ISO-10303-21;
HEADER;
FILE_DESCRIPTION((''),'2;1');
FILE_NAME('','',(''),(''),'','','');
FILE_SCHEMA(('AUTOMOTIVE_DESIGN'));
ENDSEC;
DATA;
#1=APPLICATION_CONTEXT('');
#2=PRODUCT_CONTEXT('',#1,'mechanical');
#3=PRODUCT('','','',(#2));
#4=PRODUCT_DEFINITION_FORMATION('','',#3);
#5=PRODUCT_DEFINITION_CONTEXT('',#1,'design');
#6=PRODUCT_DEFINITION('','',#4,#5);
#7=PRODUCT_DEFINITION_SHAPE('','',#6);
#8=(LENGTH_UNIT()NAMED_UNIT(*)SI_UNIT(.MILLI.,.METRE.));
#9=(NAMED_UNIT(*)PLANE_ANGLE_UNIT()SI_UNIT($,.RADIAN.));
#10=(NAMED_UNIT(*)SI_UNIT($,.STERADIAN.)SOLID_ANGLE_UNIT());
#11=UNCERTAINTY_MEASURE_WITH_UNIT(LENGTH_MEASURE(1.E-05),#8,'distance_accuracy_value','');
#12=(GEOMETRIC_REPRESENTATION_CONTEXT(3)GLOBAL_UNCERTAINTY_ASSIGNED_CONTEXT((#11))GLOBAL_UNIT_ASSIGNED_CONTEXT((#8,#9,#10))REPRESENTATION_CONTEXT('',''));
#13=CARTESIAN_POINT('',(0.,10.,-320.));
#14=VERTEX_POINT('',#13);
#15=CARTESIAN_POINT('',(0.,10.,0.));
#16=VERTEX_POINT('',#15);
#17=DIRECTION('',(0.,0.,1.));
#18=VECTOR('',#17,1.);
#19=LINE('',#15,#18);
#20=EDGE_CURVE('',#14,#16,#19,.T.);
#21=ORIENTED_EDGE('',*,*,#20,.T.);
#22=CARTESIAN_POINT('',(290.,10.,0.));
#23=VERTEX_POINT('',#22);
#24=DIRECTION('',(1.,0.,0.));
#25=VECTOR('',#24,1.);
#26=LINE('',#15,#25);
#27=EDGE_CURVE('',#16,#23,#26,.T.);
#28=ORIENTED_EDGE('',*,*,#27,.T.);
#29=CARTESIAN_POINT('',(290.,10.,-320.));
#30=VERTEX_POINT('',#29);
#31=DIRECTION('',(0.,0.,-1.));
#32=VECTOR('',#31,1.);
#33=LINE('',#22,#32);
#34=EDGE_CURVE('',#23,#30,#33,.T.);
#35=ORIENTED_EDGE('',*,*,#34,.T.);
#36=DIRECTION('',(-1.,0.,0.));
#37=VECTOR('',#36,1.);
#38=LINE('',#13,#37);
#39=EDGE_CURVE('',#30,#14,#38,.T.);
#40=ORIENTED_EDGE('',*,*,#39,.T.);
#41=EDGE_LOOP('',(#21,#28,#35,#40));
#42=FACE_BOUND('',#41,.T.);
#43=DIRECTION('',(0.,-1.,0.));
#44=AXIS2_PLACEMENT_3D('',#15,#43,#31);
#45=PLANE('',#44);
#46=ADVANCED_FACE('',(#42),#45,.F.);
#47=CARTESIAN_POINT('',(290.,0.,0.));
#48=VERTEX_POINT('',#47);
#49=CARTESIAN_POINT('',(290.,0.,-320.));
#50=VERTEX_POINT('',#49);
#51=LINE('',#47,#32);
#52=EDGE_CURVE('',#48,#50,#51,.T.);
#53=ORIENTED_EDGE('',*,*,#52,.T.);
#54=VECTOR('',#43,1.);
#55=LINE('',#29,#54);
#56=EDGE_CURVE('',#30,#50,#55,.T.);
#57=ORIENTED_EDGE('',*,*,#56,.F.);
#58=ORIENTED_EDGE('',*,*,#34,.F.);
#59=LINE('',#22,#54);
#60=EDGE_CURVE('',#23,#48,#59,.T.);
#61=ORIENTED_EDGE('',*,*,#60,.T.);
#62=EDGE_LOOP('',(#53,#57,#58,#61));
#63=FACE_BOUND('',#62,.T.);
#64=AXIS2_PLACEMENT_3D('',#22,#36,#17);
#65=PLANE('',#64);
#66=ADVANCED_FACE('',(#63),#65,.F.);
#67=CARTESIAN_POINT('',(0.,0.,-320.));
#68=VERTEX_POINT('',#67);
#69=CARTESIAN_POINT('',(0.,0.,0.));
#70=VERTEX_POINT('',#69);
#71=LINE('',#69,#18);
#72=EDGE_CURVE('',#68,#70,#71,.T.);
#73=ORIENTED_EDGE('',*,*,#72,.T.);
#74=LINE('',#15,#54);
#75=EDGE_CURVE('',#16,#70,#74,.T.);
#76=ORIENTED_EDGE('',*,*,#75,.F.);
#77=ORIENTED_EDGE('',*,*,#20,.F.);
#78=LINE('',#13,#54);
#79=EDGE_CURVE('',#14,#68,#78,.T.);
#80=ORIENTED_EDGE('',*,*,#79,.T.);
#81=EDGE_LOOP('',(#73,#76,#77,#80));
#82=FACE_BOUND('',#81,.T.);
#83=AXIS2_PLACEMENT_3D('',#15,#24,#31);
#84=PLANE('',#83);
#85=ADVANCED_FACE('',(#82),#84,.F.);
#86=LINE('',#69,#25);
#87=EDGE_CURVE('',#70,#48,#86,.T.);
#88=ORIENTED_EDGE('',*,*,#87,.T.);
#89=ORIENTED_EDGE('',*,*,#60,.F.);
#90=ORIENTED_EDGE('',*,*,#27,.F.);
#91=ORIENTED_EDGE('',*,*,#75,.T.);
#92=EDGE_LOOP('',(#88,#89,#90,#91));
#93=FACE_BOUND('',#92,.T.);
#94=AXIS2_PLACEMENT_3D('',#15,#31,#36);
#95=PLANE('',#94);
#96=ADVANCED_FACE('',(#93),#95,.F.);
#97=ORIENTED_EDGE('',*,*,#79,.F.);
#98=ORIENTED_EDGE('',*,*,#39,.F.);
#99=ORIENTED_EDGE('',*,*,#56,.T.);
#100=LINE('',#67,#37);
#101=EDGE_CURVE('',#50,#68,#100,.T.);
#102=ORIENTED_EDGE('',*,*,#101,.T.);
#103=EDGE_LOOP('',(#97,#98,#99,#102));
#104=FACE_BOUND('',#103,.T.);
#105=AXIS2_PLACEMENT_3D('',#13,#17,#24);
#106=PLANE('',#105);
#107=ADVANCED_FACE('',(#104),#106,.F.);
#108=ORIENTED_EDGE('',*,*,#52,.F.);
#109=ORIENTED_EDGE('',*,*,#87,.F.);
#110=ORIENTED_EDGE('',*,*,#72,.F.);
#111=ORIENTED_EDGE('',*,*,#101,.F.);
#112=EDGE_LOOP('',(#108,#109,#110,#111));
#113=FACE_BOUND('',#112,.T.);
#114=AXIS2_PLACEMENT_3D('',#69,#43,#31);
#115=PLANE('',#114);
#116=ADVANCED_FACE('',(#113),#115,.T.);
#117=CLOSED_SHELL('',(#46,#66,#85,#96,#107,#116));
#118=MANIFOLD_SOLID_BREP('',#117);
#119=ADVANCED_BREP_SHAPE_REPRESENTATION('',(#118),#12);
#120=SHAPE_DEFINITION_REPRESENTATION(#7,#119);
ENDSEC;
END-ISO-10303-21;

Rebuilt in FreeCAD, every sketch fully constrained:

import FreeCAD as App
import Part
import Sketcher


def add_polygon(sketch, points):
    """Adds a closed chain of lines whose ends are joined by coincident constraints."""
    first, n = sketch.GeometryCount, len(points)
    for a, b in zip(points, points[1:] + points[:1]):
        sketch.addGeometry(Part.LineSegment(App.Vector(*a, 0), App.Vector(*b, 0)), False)
    for i in range(n):
        sketch.addConstraint(Sketcher.Constraint("Coincident", first + i, 2, first + (i + 1) % n, 1))

doc = App.newDocument("Part")
body = doc.addObject("PartDesign::Body", "Body")

# Sketch on XZ plane
sketch1 = body.newObject("Sketcher::SketchObject", "Sketch")
sketch1.AttachmentSupport = (doc.getObject("XZ_Plane"), [""])
sketch1.MapMode = "FlatFace"
add_polygon(sketch1, [(0, -320), (0, 0), (290, 0), (290, -320)])  # lines 0-3
sketch1.addConstraint([
    Sketcher.Constraint("Vertical", 0),
    Sketcher.Constraint("Horizontal", 1),
    Sketcher.Constraint("Vertical", 2),
    Sketcher.Constraint("Horizontal", 3),
    Sketcher.Constraint("Coincident", 0, 2, -1, 1),
    Sketcher.Constraint("DistanceX", 1, 1, 1, 2, 290.0),
    Sketcher.Constraint("DistanceY", 0, 1, 0, 2, 320.0),
])
pad1 = body.newObject("PartDesign::Pad", "Pad")
pad1.Profile = sketch1
pad1.Length = 10
pad1.Reversed = True

doc.recompute()
